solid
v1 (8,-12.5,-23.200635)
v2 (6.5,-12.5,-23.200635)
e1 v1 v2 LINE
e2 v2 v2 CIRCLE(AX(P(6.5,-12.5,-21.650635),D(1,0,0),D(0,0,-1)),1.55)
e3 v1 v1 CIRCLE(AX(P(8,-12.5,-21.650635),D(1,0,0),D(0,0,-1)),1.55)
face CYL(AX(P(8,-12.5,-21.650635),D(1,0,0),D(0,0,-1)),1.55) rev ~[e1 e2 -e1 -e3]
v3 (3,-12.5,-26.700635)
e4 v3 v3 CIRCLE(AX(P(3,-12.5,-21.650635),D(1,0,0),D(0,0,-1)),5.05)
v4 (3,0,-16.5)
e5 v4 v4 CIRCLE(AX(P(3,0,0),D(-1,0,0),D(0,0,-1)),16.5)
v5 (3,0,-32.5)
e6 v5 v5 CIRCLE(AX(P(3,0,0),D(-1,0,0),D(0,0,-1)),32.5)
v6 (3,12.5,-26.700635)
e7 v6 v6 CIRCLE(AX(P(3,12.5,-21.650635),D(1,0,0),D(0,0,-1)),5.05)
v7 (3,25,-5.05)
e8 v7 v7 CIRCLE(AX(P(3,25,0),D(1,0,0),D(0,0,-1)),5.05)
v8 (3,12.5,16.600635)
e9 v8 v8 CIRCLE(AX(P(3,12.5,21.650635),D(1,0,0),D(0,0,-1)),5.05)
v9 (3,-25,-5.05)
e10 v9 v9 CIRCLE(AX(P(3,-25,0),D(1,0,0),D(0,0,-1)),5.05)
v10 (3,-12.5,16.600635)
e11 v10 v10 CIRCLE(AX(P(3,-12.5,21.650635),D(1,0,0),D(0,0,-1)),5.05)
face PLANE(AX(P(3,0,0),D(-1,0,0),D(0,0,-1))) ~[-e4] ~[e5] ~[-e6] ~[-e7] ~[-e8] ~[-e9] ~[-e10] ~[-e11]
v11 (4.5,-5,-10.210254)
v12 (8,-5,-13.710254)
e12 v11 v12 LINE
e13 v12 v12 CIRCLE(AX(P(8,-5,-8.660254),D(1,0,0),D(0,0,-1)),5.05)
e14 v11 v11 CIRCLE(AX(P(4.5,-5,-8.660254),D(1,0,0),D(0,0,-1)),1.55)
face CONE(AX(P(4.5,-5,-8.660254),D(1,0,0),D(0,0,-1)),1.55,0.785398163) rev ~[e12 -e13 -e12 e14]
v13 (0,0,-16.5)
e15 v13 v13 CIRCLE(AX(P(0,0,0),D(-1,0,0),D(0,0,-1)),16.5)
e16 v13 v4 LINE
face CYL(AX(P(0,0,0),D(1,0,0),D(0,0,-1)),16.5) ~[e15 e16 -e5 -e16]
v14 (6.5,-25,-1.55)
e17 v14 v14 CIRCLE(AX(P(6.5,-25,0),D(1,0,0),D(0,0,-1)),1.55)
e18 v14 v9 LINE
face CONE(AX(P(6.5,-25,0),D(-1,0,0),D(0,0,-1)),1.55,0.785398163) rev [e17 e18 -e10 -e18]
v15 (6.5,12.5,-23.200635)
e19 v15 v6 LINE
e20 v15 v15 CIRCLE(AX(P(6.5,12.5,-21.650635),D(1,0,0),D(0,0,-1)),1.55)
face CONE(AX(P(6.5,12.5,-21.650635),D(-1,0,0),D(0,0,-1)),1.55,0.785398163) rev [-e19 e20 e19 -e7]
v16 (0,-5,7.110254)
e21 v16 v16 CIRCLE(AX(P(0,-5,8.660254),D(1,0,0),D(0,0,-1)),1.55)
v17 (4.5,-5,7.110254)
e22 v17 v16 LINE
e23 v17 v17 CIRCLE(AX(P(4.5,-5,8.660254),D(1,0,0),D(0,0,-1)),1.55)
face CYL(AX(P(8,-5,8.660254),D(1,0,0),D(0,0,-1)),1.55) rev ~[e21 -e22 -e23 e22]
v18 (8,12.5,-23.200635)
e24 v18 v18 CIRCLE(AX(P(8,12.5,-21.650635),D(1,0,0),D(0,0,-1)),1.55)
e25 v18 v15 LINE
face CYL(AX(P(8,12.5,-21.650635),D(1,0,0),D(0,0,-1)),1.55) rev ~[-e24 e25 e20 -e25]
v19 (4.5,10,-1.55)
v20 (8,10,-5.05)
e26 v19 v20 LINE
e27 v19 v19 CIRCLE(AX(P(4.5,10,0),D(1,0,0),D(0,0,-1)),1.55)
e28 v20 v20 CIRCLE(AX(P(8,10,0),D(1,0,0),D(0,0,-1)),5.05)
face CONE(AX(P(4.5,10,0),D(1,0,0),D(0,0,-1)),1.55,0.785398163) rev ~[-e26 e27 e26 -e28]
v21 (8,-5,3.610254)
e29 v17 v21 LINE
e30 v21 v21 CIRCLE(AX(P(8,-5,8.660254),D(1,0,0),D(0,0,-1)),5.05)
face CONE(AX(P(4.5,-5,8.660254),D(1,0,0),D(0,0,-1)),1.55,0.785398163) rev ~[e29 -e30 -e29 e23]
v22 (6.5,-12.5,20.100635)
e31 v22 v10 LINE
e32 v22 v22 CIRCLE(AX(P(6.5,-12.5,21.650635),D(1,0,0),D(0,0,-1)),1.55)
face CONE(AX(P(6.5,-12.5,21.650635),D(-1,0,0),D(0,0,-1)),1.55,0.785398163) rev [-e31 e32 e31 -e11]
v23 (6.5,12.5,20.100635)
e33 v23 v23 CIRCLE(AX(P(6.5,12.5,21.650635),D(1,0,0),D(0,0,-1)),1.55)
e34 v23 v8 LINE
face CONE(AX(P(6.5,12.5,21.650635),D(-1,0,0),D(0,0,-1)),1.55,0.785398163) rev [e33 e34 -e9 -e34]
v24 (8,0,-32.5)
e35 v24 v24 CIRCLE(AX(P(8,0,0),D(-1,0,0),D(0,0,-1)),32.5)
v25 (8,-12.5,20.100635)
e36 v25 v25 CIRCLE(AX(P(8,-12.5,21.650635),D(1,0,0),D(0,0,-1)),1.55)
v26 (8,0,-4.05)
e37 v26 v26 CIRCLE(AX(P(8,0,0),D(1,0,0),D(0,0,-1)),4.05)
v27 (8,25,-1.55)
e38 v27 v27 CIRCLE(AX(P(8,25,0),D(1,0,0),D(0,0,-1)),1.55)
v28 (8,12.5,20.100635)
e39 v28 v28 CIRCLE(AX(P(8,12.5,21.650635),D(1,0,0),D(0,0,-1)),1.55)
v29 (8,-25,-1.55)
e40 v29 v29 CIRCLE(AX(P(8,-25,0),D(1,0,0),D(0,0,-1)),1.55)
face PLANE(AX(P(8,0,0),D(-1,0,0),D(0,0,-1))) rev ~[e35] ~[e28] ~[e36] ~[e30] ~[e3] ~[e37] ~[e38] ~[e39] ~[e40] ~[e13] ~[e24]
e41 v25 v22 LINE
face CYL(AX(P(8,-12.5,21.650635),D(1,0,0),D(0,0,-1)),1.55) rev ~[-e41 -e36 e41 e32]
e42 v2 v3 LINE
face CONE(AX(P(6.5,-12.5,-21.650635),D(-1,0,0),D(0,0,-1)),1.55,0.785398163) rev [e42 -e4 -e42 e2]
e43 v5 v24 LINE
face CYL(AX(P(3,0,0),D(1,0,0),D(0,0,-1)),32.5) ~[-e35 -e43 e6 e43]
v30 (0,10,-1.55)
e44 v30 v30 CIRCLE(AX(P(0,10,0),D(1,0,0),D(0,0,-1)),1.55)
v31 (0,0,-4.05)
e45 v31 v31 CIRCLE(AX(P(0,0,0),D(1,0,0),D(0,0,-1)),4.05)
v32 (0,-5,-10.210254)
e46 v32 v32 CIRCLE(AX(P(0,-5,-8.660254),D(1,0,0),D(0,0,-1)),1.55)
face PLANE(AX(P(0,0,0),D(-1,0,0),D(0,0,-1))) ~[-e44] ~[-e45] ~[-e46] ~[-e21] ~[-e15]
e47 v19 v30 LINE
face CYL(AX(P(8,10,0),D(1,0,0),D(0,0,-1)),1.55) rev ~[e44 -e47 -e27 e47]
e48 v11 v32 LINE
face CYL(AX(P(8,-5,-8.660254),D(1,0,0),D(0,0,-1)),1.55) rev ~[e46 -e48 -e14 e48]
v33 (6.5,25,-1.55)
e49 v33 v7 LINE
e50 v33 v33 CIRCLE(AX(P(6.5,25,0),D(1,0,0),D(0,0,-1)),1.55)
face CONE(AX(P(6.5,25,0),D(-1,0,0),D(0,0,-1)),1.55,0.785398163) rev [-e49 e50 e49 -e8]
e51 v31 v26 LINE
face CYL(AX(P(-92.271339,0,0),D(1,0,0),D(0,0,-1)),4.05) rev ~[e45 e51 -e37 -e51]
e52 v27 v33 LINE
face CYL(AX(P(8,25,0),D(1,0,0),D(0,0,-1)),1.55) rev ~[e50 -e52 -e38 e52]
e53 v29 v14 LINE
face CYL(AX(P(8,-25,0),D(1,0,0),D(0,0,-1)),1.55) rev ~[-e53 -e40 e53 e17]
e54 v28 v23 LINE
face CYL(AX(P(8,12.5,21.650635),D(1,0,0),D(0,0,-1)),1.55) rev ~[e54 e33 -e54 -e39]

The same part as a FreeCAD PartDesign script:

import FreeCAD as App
import Part
import Sketcher

V = App.Vector


def edges_at(feature, points):
    """Names of the edges that pass closest to the given points."""
    edges = feature.Shape.Edges
    near = lambda p: min(range(len(edges)), key=lambda i: edges[i].distToShape(Part.Vertex(*p))[0])
    return sorted({f"Edge{near(p) + 1}" for p in points})

doc = App.newDocument("Part")
body = doc.addObject("PartDesign::Body", "Body")

sketch1 = body.newObject("Sketcher::SketchObject", "Sketch")
sketch1.AttachmentSupport = (doc.getObject("XY_Plane"), [""])
sketch1.MapMode = "FlatFace"
sketch1.addGeometry(Part.LineSegment(V(0, 16.5, 0), V(0, 0, 0)), False)
sketch1.addGeometry(Part.LineSegment(V(0, 0, 0), V(8, 0, 0)), False)
sketch1.addGeometry(Part.LineSegment(V(8, 0, 0), V(8, 32.5, 0)), False)
sketch1.addGeometry(Part.LineSegment(V(8, 32.5, 0), V(3, 32.5, 0)), False)
sketch1.addGeometry(Part.LineSegment(V(3, 32.5, 0), V(3, 16.5, 0)), False)
sketch1.addGeometry(Part.LineSegment(V(3, 16.5, 0), V(0, 16.5, 0)), False)
sketch1.addConstraint(Sketcher.Constraint("Coincident", 0, 2, 1, 1))
sketch1.addConstraint(Sketcher.Constraint("Coincident", 1, 2, 2, 1))
sketch1.addConstraint(Sketcher.Constraint("Coincident", 2, 2, 3, 1))
sketch1.addConstraint(Sketcher.Constraint("Coincident", 3, 2, 4, 1))
sketch1.addConstraint(Sketcher.Constraint("Coincident", 4, 2, 5, 1))
sketch1.addConstraint(Sketcher.Constraint("Coincident", 5, 2, 0, 1))
sketch1.addConstraint(Sketcher.Constraint("Vertical", 0))
sketch1.addConstraint(Sketcher.Constraint("Horizontal", 1))
sketch1.addConstraint(Sketcher.Constraint("Vertical", 2))
sketch1.addConstraint(Sketcher.Constraint("Horizontal", 3))
sketch1.addConstraint(Sketcher.Constraint("Vertical", 4))
sketch1.addConstraint(Sketcher.Constraint("Horizontal", 5))
sketch1.addConstraint(Sketcher.Constraint("Coincident", 0, 2, -1, 1))
sketch1.addConstraint(Sketcher.Constraint("DistanceX", 1, 1, 1, 2, 8.0))
sketch1.addConstraint(Sketcher.Constraint("DistanceX", 3, 2, 3, 1, 5.0))
sketch1.addConstraint(Sketcher.Constraint("DistanceY", 4, 2, 4, 1, 16.0))
sketch1.addConstraint(Sketcher.Constraint("DistanceY", 0, 2, 0, 1, 16.5))
revolution = body.newObject("PartDesign::Revolution", "Revolution")
revolution.Profile = sketch1
revolution.ReferenceAxis = (sketch1, ["H_Axis"])
revolution.Angle = 360

sketch2 = body.newObject("Sketcher::SketchObject", "Sketch001")
sketch2.AttachmentSupport = (doc.getObject("YZ_Plane"), [""])
sketch2.MapMode = "FlatFace"
sketch2.addGeometry(Part.Circle(V(0, 0, 0), V(0, 0, 1), 4), False)
sketch2.addConstraint(Sketcher.Constraint("Coincident", 0, 3, -1, 1))
sketch2.addConstraint(Sketcher.Constraint("Diameter", 0, 8.1))
doc.recompute()
hole = body.newObject("PartDesign::Hole", "Hole")
hole.Profile = sketch2
hole.ThreadType = "None"
hole.Diameter = 8.1
hole.DepthType = "ThroughAll"
hole.Reversed = True

sketch3 = body.newObject("Sketcher::SketchObject", "Sketch002")
sketch3.AttachmentSupport = (doc.getObject("YZ_Plane"), [""])
sketch3.MapMode = "FlatFace"
sketch3.AttachmentOffset = App.Placement(V(0, 0, 8), App.Rotation())
sketch3.addGeometry(Part.Circle(V(10, 0, 0), V(0, 0, 1), 1.6), False)
sketch3.addGeometry(Part.Circle(V(-5, -8.7, 0), V(0, 0, 1), 1.6), False)
sketch3.addGeometry(Part.Circle(V(-5, 8.7, 0), V(0, 0, 1), 1.6), False)
sketch3.addConstraint(Sketcher.Constraint("Equal", 0, 1))
sketch3.addConstraint(Sketcher.Constraint("Equal", 1, 2))
sketch3.addConstraint(Sketcher.Constraint("Symmetric", 1, 3, 2, 3, -1))
sketch3.addConstraint(Sketcher.Constraint("PointOnObject", 0, 3, -1))
sketch3.addConstraint(Sketcher.Constraint("Diameter", 0, 3.1))
sketch3.addConstraint(Sketcher.Constraint("DistanceX", -1, 1, 0, 3, 10.0))
sketch3.addConstraint(Sketcher.Constraint("DistanceX", 1, 3, -1, 1, 5.0))
sketch3.addConstraint(Sketcher.Constraint("DistanceY", 1, 3, 2, 3, 17.320508))
pocket1 = body.newObject("PartDesign::Pocket", "Pocket")
pocket1.Profile = sketch3
pocket1.Type = "ThroughAll"
doc.recompute()

chamfer = body.newObject("PartDesign::Chamfer", "Chamfer")
chamfer.Base = (pocket1, edges_at(pocket1, [(8, 10, 1.55), (8, -5, -7.11), (8, -5, 10.21)]))
chamfer.Size = 3.5

sketch4 = body.newObject("Sketcher::SketchObject", "Sketch003")
sketch4.AttachmentSupport = (doc.getObject("YZ_Plane"), [""])
sketch4.MapMode = "FlatFace"
sketch4.AttachmentOffset = App.Placement(V(0, 0, 8), App.Rotation())
sketch4.addGeometry(Part.Circle(V(25, 0, 0), V(0, 0, 1), 1.6), False)
sketch4.addGeometry(Part.Circle(V(12.5, -21.7, 0), V(0, 0, 1), 1.6), False)
sketch4.addGeometry(Part.Circle(V(-12.5, -21.7, 0), V(0, 0, 1), 1.6), False)
sketch4.addGeometry(Part.Circle(V(-25, 0, 0), V(0, 0, 1), 1.6), False)
sketch4.addGeometry(Part.Circle(V(-12.5, 21.7, 0), V(0, 0, 1), 1.6), False)
sketch4.addGeometry(Part.Circle(V(12.5, 21.7, 0), V(0, 0, 1), 1.6), False)
sketch4.addConstraint(Sketcher.Constraint("Equal", 0, 1))
sketch4.addConstraint(Sketcher.Constraint("Equal", 1, 2))
sketch4.addConstraint(Sketcher.Constraint("Equal", 2, 3))
sketch4.addConstraint(Sketcher.Constraint("Equal", 3, 4))
sketch4.addConstraint(Sketcher.Constraint("Equal", 4, 5))
sketch4.addConstraint(Sketcher.Constraint("Symmetric", 0, 3, 3, 3, -1, 1))
sketch4.addConstraint(Sketcher.Constraint("Symmetric", 1, 3, 4, 3, -1, 1))
sketch4.addConstraint(Sketcher.Constraint("Symmetric", 2, 3, 5, 3, -1, 1))
sketch4.addConstraint(Sketcher.Constraint("Symmetric", 1, 3, 2, 3, -2))
sketch4.addConstraint(Sketcher.Constraint("PointOnObject", 0, 3, -1))
sketch4.addConstraint(Sketcher.Constraint("Diameter", 0, 3.1))
sketch4.addConstraint(Sketcher.Constraint("DistanceX", -1, 1, 0, 3, 25.0))
sketch4.addConstraint(Sketcher.Constraint("DistanceX", 2, 3, 1, 3, 25.0))
sketch4.addConstraint(Sketcher.Constraint("DistanceY", 2, 3, 4, 3, 43.30127))
pocket2 = body.newObject("PartDesign::Pocket", "Pocket001")
pocket2.Profile = sketch4
pocket2.Type = "ThroughAll"
doc.recompute()

chamfer2 = body.newObject("PartDesign::Chamfer", "Chamfer001")
chamfer2.Base = (pocket2, edges_at(pocket2, [
    (3, 25, 1.55),
    (3, 12.5, 23.201),
    (3, -12.5, 23.201),
    (3, -25, 1.55),
    (3, -12.5, -20.101),
    (3, 12.5, -20.101),
]))
chamfer2.Size = 3.5

doc.recompute()
